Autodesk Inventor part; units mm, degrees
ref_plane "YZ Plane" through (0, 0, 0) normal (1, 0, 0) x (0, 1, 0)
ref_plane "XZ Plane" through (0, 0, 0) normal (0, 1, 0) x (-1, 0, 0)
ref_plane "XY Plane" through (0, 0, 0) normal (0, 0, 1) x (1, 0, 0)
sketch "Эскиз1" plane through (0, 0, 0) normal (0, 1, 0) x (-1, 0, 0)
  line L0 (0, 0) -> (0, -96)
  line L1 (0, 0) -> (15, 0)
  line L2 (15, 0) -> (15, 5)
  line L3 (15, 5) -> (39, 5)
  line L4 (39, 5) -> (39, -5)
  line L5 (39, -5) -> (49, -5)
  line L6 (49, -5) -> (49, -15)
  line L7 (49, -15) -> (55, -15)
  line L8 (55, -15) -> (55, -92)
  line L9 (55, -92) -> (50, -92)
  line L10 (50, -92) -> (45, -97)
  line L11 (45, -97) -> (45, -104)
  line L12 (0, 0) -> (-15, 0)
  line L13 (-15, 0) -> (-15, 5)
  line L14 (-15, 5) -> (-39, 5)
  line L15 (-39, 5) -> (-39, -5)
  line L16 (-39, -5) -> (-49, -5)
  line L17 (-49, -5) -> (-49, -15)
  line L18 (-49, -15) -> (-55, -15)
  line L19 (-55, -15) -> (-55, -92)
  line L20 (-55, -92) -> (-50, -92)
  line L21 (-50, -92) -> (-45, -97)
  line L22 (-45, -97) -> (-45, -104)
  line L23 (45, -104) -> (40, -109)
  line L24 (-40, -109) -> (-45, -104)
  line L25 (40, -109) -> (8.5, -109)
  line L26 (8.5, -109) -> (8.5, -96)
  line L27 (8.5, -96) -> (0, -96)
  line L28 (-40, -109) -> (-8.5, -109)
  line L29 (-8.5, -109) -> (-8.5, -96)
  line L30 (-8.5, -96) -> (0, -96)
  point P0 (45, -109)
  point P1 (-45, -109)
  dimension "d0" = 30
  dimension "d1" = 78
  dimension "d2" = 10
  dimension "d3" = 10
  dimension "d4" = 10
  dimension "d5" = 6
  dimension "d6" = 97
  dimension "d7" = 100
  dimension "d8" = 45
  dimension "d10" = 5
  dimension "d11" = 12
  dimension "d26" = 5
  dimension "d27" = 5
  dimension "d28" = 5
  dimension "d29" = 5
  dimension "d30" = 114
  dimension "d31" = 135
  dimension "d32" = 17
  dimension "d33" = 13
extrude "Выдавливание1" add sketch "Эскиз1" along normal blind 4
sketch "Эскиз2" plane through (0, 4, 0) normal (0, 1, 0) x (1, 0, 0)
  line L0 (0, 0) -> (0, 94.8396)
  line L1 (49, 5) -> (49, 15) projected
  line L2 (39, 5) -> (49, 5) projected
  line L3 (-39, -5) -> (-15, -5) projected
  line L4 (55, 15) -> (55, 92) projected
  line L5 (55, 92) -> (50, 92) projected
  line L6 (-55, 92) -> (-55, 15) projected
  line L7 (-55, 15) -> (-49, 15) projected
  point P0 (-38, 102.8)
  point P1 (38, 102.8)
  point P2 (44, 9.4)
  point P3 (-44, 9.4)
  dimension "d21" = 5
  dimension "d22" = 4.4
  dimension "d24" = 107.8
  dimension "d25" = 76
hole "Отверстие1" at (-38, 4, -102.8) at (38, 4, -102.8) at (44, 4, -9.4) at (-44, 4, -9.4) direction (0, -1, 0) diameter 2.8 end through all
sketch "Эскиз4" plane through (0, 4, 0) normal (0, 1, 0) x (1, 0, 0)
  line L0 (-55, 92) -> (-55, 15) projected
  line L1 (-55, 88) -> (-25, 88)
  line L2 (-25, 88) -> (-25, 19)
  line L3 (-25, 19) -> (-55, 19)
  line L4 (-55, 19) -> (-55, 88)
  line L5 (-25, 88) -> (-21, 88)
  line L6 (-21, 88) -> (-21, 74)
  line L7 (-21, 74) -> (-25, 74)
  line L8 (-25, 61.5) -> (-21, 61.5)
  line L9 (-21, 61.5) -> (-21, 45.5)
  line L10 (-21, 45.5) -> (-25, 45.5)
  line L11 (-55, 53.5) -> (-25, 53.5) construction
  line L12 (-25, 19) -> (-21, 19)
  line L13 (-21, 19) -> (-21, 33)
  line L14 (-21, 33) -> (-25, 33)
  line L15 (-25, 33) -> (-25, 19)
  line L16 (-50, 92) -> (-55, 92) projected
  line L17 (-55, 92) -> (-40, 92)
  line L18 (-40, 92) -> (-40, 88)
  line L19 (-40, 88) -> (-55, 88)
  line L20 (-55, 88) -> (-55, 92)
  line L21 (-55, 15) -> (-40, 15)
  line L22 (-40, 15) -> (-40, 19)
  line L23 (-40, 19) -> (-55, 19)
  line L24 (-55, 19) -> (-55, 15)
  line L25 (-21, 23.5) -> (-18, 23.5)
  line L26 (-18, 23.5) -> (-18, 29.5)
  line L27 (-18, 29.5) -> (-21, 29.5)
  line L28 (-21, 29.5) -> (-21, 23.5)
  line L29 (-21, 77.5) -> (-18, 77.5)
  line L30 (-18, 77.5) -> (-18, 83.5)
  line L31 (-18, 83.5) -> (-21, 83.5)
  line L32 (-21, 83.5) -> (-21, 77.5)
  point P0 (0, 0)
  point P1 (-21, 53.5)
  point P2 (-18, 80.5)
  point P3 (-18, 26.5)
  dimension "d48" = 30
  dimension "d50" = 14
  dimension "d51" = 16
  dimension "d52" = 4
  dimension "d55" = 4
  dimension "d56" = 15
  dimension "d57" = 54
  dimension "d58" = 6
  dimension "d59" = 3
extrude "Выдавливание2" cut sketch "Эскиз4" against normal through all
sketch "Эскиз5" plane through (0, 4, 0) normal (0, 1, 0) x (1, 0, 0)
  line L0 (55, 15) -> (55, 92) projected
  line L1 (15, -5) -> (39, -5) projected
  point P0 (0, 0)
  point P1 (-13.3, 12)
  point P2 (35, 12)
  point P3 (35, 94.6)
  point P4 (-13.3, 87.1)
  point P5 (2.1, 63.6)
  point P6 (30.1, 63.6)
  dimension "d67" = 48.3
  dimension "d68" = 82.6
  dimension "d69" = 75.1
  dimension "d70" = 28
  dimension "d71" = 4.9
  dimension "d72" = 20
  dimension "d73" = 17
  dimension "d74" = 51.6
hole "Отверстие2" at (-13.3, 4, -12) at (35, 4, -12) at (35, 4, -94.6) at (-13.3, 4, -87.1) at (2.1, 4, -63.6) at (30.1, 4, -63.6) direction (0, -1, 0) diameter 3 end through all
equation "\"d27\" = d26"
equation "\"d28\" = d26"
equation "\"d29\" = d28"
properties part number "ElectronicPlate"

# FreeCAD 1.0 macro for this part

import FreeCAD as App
import Part
import Sketcher
from FreeCAD import Vector
Q = App.Units.Quantity


def add_polygon(sketch, points):
    """Adds a closed chain of lines whose ends are joined by coincident constraints."""
    first, n = sketch.GeometryCount, len(points)
    for a, b in zip(points, points[1:] + points[:1]):
        sketch.addGeometry(Part.LineSegment(App.Vector(*a, 0), App.Vector(*b, 0)), False)
    for i in range(n):
        sketch.addConstraint(Sketcher.Constraint("Coincident", first + i, 2, first + (i + 1) % n, 1))

doc = App.newDocument("Part")
body = doc.addObject("PartDesign::Body", "Body")

# Sketch on XZ plane
sketch1 = doc.addObject("Sketcher::SketchObject", "Sketch")
body.addObject(sketch1)
sketch1.AttachmentSupport = (doc.XZ_Plane, [""])
sketch1.MapMode = "FlatFace"
add_polygon(sketch1, [(-15, 0), (15, 0), (15, 5), (39, 5), (39, -5), (49, -5), (49, -15), (55, -15), (55, -92), (50, -92), (45, -97), (45, -104), (40, -109), (8, -109), (8, -96), (-8, -96), (-8, -109), (-40, -109), (-45, -104), (-45, -97), (-50, -92), (-55, -92), (-55, -15), (-49, -15), (-49, -5), (-39, -5), (-39, 5), (-15, 5)])  # lines 0-27
sketch1.addConstraint(Sketcher.Constraint("Horizontal", 0))
sketch1.addConstraint(Sketcher.Constraint("Vertical", 1))
sketch1.addConstraint(Sketcher.Constraint("Horizontal", 2))
sketch1.addConstraint(Sketcher.Constraint("Vertical", 3))
sketch1.addConstraint(Sketcher.Constraint("Horizontal", 4))
sketch1.addConstraint(Sketcher.Constraint("Vertical", 5))
sketch1.addConstraint(Sketcher.Constraint("Horizontal", 6))
sketch1.addConstraint(Sketcher.Constraint("Vertical", 7))
sketch1.addConstraint(Sketcher.Constraint("Horizontal", 8))
sketch1.addConstraint(Sketcher.Constraint("Vertical", 10))
sketch1.addConstraint(Sketcher.Constraint("Horizontal", 12))
sketch1.addConstraint(Sketcher.Constraint("Vertical", 13))
sketch1.addConstraint(Sketcher.Constraint("Horizontal", 14))
sketch1.addConstraint(Sketcher.Constraint("Vertical", 15))
sketch1.addConstraint(Sketcher.Constraint("Horizontal", 16))
sketch1.addConstraint(Sketcher.Constraint("Vertical", 18))
sketch1.addConstraint(Sketcher.Constraint("Horizontal", 20))
sketch1.addConstraint(Sketcher.Constraint("Vertical", 21))
sketch1.addConstraint(Sketcher.Constraint("Horizontal", 22))
sketch1.addConstraint(Sketcher.Constraint("Vertical", 23))
sketch1.addConstraint(Sketcher.Constraint("Horizontal", 24))
sketch1.addConstraint(Sketcher.Constraint("Vertical", 25))
sketch1.addConstraint(Sketcher.Constraint("Horizontal", 26))
sketch1.addConstraint(Sketcher.Constraint("Vertical", 27))
sketch1.addConstraint(Sketcher.Constraint("Symmetric", 2, 2, 24, 2, -1, 1))
sketch1.addConstraint(Sketcher.Constraint("Symmetric", 0, 2, 27, 2, -1, 1))
sketch1.addConstraint(Sketcher.Constraint("Symmetric", 12, 2, 15, 2, -2))
sketch1.addConstraint(Sketcher.Constraint("Symmetric", 10, 2, 17, 2, -2))
sketch1.addConstraint(Sketcher.Constraint("Symmetric", 8, 2, 19, 2, -2))
sketch1.addConstraint(Sketcher.Constraint("Symmetric", 6, 2, 21, 2, -2))
sketch1.addConstraint(Sketcher.Constraint("Symmetric", 4, 2, 23, 2, -2))
sketch1.addConstraint(Sketcher.Constraint("Parallel", 9, 11))
sketch1.addConstraint(Sketcher.Constraint("Perpendicular", 11, 17))
sketch1.addConstraint(Sketcher.Constraint("Parallel", 17, 19))
sketch1.addConstraint(Sketcher.Constraint("Horizontal", 9, 2, 18, 2))
sketch1.addConstraint(Sketcher.Constraint("Horizontal", 2, 2, 25, 2))
sketch1.addConstraint(Sketcher.Constraint("Equal", 20, 1))
sketch1.addConstraint(Sketcher.Constraint("Equal", 24, 3))
sketch1.addConstraint(Sketcher.Constraint("Equal", 3, 5))
sketch1.addConstraint(Sketcher.Constraint("Equal", 9, 11))
sketch1.addConstraint(Sketcher.Constraint("DistanceX", 0, 1, 0, 2, Q("30 mm")))
sketch1.addConstraint(Sketcher.Constraint("DistanceX", 4, 1, 4, 2, Q("10 mm")))
sketch1.addConstraint(Sketcher.Constraint("DistanceX", 6, 1, 6, 2, Q("6 mm")))
sketch1.addConstraint(Sketcher.Constraint("DistanceX", 14, 2, 14, 1, Q("17 mm")))
sketch1.addConstraint(Sketcher.Constraint("DistanceY", 13, 1, 13, 2, Q("13 mm")))
sketch1.addConstraint(Sketcher.Constraint("DistanceX", -1, 1, 9, 2, Q("45 mm")))
sketch1.addConstraint(Sketcher.Constraint("DistanceY", 9, 2, -1, 1, Q("97 mm")))
sketch1.addConstraint(Sketcher.Constraint("DistanceY", 7, 2, 2, 2, Q("97 mm")))
sketch1.addConstraint(Sketcher.Constraint("DistanceY", 10, 2, 8, 2, Q("12 mm")))
pad1 = doc.addObject("PartDesign::Pad", "Pad")
body.addObject(pad1)
pad1.Profile = sketch1
pad1.Length = 4
pad1.Reversed = True

# Sketch on XZ plane
sketch2 = doc.addObject("Sketcher::SketchObject", "Sketch001")
body.addObject(sketch2)
sketch2.AttachmentSupport = (doc.XZ_Plane, [""])
sketch2.MapMode = "FlatFace"
sketch2.AttachmentOffset = App.Placement(Vector(0, 0, -4), App.Rotation())
sketch2.addGeometry(Part.Circle(Vector(-38, -102.8, 0), Vector(0, 0, 1), 1.4), False)
sketch2.addGeometry(Part.Circle(Vector(38, -102.8, 0), Vector(0, 0, 1), 1.4), False)
sketch2.addGeometry(Part.Circle(Vector(44, -9.4, 0), Vector(0, 0, 1), 1.4), False)
sketch2.addGeometry(Part.Circle(Vector(-44, -9.4, 0), Vector(0, 0, 1), 1.4), False)
sketch2.addConstraint(Sketcher.Constraint("Equal", 0, 1))
sketch2.addConstraint(Sketcher.Constraint("Equal", 1, 2))
sketch2.addConstraint(Sketcher.Constraint("Equal", 2, 3))
sketch2.addConstraint(Sketcher.Constraint("Symmetric", 0, 3, 1, 3, -2))
sketch2.addConstraint(Sketcher.Constraint("Symmetric", 2, 3, 3, 3, -2))
sketch2.addConstraint(Sketcher.Constraint("Diameter", 0, Q("2.8 mm")))
sketch2.addConstraint(Sketcher.Constraint("DistanceX", 0, 3, -1, 1, Q("38 mm")))
sketch2.addConstraint(Sketcher.Constraint("DistanceX", -1, 1, 2, 3, Q("44 mm")))
sketch2.addConstraint(Sketcher.Constraint("DistanceY", 0, 3, -1, 1, Q("102.8 mm")))
sketch2.addConstraint(Sketcher.Constraint("DistanceY", 2, 3, -1, 1, Q("9.4 mm")))
doc.recompute()
hole = doc.addObject("PartDesign::Hole", "Hole")
body.addObject(hole)
hole.Profile = sketch2
hole.ThreadType = "None"
hole.Diameter = 2.8
hole.DepthType = "ThroughAll"
hole.Reversed = True

# Sketch on XZ plane
sketch3 = doc.addObject("Sketcher::SketchObject", "Sketch002")
body.addObject(sketch3)
sketch3.AttachmentSupport = (doc.XZ_Plane, [""])
sketch3.MapMode = "FlatFace"
sketch3.AttachmentOffset = App.Placement(Vector(0, 0, -4), App.Rotation())
add_polygon(sketch3, [(-55, -92), (-55, -15), (-40, -15), (-40, -19), (-21, -19), (-21, -23.5), (-18, -23.5), (-18, -29.5), (-21, -29.5), (-21, -33), (-25, -33), (-25, -45.5), (-21, -45.5), (-21, -61.5), (-25, -61.5), (-25, -74), (-21, -74), (-21, -77.5), (-18, -77.5), (-18, -83.5), (-21, -83.5), (-21, -88), (-40, -88), (-40, -92)])  # lines 0-23
sketch3.addConstraint(Sketcher.Constraint("Vertical", 0))
sketch3.addConstraint(Sketcher.Constraint("Horizontal", 1))
sketch3.addConstraint(Sketcher.Constraint("Vertical", 2))
sketch3.addConstraint(Sketcher.Constraint("Horizontal", 3))
sketch3.addConstraint(Sketcher.Constraint("Vertical", 4))
sketch3.addConstraint(Sketcher.Constraint("Horizontal", 5))
sketch3.addConstraint(Sketcher.Constraint("Vertical", 6))
sketch3.addConstraint(Sketcher.Constraint("Horizontal", 7))
sketch3.addConstraint(Sketcher.Constraint("Vertical", 8))
sketch3.addConstraint(Sketcher.Constraint("Horizontal", 9))
sketch3.addConstraint(Sketcher.Constraint("Vertical", 10))
sketch3.addConstraint(Sketcher.Constraint("Horizontal", 11))
sketch3.addConstraint(Sketcher.Constraint("Vertical", 12))
sketch3.addConstraint(Sketcher.Constraint("Horizontal", 13))
sketch3.addConstraint(Sketcher.Constraint("Vertical", 14))
sketch3.addConstraint(Sketcher.Constraint("Horizontal", 15))
sketch3.addConstraint(Sketcher.Constraint("Vertical", 16))
sketch3.addConstraint(Sketcher.Constraint("Horizontal", 17))
sketch3.addConstraint(Sketcher.Constraint("Vertical", 18))
sketch3.addConstraint(Sketcher.Constraint("Horizontal", 19))
sketch3.addConstraint(Sketcher.Constraint("Vertical", 20))
sketch3.addConstraint(Sketcher.Constraint("Horizontal", 21))
sketch3.addConstraint(Sketcher.Constraint("Vertical", 22))
sketch3.addConstraint(Sketcher.Constraint("Horizontal", 23))
sketch3.addConstraint(Sketcher.Constraint("Vertical", 4, 2, 7, 2))
sketch3.addConstraint(Sketcher.Constraint("Vertical", 8, 2, 11, 2))
sketch3.addConstraint(Sketcher.Constraint("Vertical", 10, 2, 13, 2))
sketch3.addConstraint(Sketcher.Constraint("Vertical", 12, 2, 15, 2))
sketch3.addConstraint(Sketcher.Constraint("Vertical", 6, 2, 17, 2))
sketch3.addConstraint(Sketcher.Constraint("Vertical", 16, 2, 19, 2))
sketch3.addConstraint(Sketcher.Constraint("Vertical", 2, 2, 21, 2))
sketch3.addConstraint(Sketcher.Constraint("Equal", 15, 2))
sketch3.addConstraint(Sketcher.Constraint("Equal", 10, 14))
sketch3.addConstraint(Sketcher.Constraint("Equal", 8, 16))
sketch3.addConstraint(Sketcher.Constraint("Equal", 6, 18))
sketch3.addConstraint(Sketcher.Constraint("Equal", 4, 20))
sketch3.addConstraint(Sketcher.Constraint("Equal", 2, 22))
sketch3.addConstraint(Sketcher.Constraint("DistanceX", 1, 1, 1, 2, Q("15 mm")))
sketch3.addConstraint(Sketcher.Constraint("DistanceX", 5, 1, 5, 2, Q("3 mm")))
sketch3.addConstraint(Sketcher.Constraint("DistanceX", 9, 2, 9, 1, Q("4 mm")))
sketch3.addConstraint(Sketcher.Constraint("DistanceY", 6, 2, 6, 1, Q("6 mm")))
sketch3.addConstraint(Sketcher.Constraint("DistanceY", 12, 2, 12, 1, Q("16 mm")))
sketch3.addConstraint(Sketcher.Constraint("DistanceY", 0, 2, -1, 1, Q("15 mm")))
sketch3.addConstraint(Sketcher.Constraint("DistanceY", 8, 2, 3, 2, Q("14 mm")))
sketch3.addConstraint(Sketcher.Constraint("DistanceY", 10, 2, 7, 2, Q("16 mm")))
sketch3.addConstraint(Sketcher.Constraint("DistanceX", 21, 2, 14, 2, Q("15 mm")))
sketch3.addConstraint(Sketcher.Constraint("DistanceY", 0, 1, 0, 2, Q("77 mm")))
sketch3.addConstraint(Sketcher.Constraint("DistanceX", 0, 2, -1, 1, Q("55 mm")))
pocket1 = doc.addObject("PartDesign::Pocket", "Pocket")
body.addObject(pocket1)
pocket1.Profile = sketch3
pocket1.Type = "ThroughAll"
pocket1.Reversed = True

# Sketch on XZ plane
sketch4 = doc.addObject("Sketcher::SketchObject", "Sketch003")
body.addObject(sketch4)
sketch4.AttachmentSupport = (doc.XZ_Plane, [""])
sketch4.MapMode = "FlatFace"
sketch4.AttachmentOffset = App.Placement(Vector(0, 0, -4), App.Rotation())
sketch4.addGeometry(Part.Circle(Vector(-13.3, -12, 0), Vector(0, 0, 1), 1.5), False)
sketch4.addGeometry(Part.Circle(Vector(35, -12, 0), Vector(0, 0, 1), 1.5), False)
sketch4.addGeometry(Part.Circle(Vector(35, -94.6, 0), Vector(0, 0, 1), 1.5), False)
sketch4.addGeometry(Part.Circle(Vector(-13.3, -87.1, 0), Vector(0, 0, 1), 1.5), False)
sketch4.addGeometry(Part.Circle(Vector(2.1, -63.6, 0), Vector(0, 0, 1), 1.5), False)
sketch4.addGeometry(Part.Circle(Vector(30.1, -63.6, 0), Vector(0, 0, 1), 1.5), False)
sketch4.addConstraint(Sketcher.Constraint("Equal", 0, 1))
sketch4.addConstraint(Sketcher.Constraint("Equal", 1, 2))
sketch4.addConstraint(Sketcher.Constraint("Equal", 2, 3))
sketch4.addConstraint(Sketcher.Constraint("Equal", 3, 4))
sketch4.addConstraint(Sketcher.Constraint("Equal", 4, 5))
sketch4.addConstraint(Sketcher.Constraint("Horizontal", 0, 3, 1, 3))
sketch4.addConstraint(Sketcher.Constraint("Horizontal", 4, 3, 5, 3))
sketch4.addConstraint(Sketcher.Constraint("Vertical", 1, 3, 2, 3))
sketch4.addConstraint(Sketcher.Constraint("Vertical", 0, 3, 3, 3))
sketch4.addConstraint(Sketcher.Constraint("Diameter", 0, Q("3 mm")))
sketch4.addConstraint(Sketcher.Constraint("DistanceY", 0, 3, -1, 1, Q("12 mm")))
sketch4.addConstraint(Sketcher.Constraint("DistanceX", -1, 1, 1, 3, Q("35 mm")))
sketch4.addConstraint(Sketcher.Constraint("DistanceY", 2, 3, 4, 3, Q("31 mm")))
sketch4.addConstraint(Sketcher.Constraint("DistanceX", 4, 3, 5, 3, Q("28 mm")))
sketch4.addConstraint(Sketcher.Constraint("DistanceX", 0, 3, -1, 1, Q("13.3 mm")))
sketch4.addConstraint(Sketcher.Constraint("DistanceY", 2, 3, -1, 1, Q("94.6 mm")))
sketch4.addConstraint(Sketcher.Constraint("DistanceY", 3, 3, -1, 1, Q("87.1 mm")))
sketch4.addConstraint(Sketcher.Constraint("DistanceX", -1, 1, 4, 3, Q("2.1 mm")))
doc.recompute()
hole2 = doc.addObject("PartDesign::Hole", "Hole001")
body.addObject(hole2)
hole2.Profile = sketch4
hole2.ThreadType = "None"
hole2.Diameter = 3
hole2.DepthType = "ThroughAll"
hole2.Reversed = True

doc.recompute()
